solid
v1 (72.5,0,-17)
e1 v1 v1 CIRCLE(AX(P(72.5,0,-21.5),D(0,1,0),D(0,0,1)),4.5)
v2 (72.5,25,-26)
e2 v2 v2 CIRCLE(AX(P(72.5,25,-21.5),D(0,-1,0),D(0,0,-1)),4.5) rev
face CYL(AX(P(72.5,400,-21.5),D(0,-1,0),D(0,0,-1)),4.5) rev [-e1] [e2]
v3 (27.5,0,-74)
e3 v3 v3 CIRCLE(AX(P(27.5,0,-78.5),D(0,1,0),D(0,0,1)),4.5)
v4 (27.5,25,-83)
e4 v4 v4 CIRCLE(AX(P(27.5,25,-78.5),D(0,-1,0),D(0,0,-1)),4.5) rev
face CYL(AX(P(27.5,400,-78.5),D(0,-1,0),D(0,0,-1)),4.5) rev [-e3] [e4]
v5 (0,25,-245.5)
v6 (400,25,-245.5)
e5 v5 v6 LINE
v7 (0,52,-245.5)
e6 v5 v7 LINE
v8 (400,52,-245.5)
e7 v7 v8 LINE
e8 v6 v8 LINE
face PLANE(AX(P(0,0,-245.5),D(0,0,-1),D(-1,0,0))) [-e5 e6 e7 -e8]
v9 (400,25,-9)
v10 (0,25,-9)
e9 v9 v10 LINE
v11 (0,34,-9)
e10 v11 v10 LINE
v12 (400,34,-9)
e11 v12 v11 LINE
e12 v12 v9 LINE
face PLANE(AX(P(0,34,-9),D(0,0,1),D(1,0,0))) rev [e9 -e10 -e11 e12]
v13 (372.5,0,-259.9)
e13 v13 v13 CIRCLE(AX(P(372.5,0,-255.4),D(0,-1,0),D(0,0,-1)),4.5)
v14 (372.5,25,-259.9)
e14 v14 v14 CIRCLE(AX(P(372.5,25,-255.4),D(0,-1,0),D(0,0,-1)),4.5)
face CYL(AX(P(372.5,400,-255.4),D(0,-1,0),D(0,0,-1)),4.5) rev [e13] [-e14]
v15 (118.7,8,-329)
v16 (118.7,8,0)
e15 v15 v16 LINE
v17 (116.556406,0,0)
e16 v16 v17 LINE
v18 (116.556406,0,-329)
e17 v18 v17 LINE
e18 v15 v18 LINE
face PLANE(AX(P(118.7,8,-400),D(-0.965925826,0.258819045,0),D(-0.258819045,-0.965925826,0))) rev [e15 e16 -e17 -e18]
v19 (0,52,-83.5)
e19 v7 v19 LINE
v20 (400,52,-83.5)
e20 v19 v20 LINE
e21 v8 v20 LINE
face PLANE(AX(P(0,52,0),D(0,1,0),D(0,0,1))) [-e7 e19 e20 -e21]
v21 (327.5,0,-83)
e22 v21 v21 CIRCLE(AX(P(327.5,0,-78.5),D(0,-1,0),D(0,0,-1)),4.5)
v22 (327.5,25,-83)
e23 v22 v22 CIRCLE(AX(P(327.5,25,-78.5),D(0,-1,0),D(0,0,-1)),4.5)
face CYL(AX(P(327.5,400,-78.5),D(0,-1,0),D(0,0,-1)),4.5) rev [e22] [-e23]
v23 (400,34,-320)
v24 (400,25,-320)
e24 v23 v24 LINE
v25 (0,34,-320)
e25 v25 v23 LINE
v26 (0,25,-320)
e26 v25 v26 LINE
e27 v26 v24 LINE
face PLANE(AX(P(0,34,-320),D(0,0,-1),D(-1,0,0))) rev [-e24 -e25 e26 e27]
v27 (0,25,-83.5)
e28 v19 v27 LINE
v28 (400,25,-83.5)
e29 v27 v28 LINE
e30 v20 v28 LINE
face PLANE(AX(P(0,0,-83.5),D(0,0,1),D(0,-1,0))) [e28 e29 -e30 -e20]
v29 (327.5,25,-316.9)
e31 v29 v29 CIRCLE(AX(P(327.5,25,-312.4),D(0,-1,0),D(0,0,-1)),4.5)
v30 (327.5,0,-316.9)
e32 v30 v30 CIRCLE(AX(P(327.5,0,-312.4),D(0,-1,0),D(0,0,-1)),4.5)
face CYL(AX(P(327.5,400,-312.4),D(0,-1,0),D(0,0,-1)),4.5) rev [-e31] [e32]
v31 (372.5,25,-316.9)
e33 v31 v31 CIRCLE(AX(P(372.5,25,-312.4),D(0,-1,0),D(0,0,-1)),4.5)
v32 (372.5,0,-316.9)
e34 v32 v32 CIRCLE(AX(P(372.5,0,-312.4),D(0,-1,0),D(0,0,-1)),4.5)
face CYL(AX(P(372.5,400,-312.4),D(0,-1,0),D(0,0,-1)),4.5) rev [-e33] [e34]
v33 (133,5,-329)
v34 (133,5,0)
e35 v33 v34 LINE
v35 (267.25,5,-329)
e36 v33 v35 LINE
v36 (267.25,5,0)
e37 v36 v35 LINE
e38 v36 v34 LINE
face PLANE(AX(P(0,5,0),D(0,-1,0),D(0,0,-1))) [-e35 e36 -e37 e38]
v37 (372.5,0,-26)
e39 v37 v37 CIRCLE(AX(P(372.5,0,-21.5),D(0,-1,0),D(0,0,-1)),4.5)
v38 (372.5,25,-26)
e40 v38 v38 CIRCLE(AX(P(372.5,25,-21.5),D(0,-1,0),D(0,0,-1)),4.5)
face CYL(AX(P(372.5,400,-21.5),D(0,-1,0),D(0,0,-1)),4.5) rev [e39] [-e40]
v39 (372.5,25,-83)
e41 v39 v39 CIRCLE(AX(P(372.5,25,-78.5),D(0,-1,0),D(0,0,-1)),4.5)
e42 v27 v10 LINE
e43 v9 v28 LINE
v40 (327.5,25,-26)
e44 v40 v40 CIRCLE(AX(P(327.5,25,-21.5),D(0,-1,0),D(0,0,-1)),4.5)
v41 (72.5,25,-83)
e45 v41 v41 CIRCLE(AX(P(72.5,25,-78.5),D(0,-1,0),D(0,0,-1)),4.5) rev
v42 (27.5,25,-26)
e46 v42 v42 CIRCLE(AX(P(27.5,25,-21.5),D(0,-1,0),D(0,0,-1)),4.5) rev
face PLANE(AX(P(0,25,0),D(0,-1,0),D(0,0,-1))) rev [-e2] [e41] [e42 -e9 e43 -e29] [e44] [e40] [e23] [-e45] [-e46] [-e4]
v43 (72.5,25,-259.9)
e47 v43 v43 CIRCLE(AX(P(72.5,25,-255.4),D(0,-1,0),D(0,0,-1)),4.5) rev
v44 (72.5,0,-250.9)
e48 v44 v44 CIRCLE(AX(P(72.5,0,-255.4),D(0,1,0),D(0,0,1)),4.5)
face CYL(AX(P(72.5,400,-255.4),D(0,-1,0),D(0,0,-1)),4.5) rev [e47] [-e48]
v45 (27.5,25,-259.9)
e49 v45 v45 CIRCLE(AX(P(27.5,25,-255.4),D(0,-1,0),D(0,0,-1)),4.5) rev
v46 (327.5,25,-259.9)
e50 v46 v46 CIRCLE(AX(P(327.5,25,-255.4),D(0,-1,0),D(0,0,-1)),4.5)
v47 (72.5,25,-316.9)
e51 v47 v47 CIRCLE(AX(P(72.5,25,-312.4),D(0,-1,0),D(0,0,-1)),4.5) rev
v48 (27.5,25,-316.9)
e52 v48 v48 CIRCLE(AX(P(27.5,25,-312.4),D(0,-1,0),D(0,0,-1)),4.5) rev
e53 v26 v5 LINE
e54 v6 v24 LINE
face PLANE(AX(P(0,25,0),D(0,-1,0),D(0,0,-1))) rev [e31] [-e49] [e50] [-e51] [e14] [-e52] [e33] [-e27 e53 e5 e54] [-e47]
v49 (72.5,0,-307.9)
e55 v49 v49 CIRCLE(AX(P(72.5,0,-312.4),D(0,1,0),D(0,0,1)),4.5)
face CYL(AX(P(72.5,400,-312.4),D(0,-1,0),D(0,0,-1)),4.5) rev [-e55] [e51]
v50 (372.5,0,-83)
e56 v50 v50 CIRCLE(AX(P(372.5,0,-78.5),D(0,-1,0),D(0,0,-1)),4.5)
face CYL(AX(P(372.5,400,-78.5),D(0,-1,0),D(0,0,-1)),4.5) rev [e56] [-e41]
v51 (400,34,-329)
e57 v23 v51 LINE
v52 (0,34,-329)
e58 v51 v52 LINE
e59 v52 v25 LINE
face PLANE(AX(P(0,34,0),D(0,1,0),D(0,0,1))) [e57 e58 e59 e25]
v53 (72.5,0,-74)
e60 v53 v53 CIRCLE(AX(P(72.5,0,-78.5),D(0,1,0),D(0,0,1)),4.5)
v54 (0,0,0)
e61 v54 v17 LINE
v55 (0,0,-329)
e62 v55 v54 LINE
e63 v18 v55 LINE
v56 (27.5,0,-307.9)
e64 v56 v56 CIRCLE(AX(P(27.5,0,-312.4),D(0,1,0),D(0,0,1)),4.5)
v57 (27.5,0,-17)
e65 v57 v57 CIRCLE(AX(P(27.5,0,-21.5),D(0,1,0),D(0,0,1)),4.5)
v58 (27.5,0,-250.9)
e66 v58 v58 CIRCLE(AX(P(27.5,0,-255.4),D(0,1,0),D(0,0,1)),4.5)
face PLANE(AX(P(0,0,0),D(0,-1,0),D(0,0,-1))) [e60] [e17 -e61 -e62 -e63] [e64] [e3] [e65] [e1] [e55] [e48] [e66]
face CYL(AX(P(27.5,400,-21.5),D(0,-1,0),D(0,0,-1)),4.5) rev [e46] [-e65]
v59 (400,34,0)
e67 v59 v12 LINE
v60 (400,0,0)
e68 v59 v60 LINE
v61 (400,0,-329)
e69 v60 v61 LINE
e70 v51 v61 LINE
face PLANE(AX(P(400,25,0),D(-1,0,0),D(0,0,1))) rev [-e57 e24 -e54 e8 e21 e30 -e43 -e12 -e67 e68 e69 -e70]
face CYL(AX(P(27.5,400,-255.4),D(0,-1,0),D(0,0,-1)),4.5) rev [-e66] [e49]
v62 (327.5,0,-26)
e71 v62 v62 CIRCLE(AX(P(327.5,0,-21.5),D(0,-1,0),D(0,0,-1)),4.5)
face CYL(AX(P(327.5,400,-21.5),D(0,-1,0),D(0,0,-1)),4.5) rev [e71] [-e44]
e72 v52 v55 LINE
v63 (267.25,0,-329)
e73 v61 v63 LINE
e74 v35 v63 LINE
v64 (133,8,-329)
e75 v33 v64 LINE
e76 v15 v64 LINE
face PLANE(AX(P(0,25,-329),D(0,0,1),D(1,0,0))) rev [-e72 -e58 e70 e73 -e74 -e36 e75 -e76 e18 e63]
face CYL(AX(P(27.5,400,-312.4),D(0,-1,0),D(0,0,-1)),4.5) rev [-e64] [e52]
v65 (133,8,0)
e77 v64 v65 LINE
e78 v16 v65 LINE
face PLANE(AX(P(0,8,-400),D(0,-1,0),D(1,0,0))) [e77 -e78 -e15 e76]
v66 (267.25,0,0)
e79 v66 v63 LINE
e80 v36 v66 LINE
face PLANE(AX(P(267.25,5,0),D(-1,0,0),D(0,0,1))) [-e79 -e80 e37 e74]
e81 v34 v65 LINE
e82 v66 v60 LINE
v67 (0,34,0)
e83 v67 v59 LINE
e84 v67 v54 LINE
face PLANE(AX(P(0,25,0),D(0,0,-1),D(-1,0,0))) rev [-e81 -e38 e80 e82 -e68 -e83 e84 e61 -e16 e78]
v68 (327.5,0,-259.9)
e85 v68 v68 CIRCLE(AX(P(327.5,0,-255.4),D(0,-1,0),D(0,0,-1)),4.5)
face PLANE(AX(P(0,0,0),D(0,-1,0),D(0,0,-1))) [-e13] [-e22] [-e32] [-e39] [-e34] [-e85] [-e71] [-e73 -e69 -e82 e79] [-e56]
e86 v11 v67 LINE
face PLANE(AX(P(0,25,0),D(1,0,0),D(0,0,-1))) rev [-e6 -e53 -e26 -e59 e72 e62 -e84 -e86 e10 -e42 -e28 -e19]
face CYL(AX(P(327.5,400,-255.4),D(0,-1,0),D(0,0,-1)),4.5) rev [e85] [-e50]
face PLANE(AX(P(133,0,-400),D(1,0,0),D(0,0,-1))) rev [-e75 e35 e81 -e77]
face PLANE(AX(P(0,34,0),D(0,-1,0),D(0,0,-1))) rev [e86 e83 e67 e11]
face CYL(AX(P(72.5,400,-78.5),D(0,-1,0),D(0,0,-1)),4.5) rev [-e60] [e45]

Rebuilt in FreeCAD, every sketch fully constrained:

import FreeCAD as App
import Part
import Sketcher
from FreeCAD import Vector
Q = App.Units.Quantity

doc = App.newDocument("Part")
body = doc.addObject("PartDesign::Body", "Body")

# Sketch on XZ plane
sketch1 = body.newObject("Sketcher::SketchObject", "Sketch")
sketch1.AttachmentSupport = (doc.getObject("XZ_Plane"), [""])
sketch1.MapMode = "FlatFace"
sketch1.addGeometry([
    Part.LineSegment(Vector(0, -329, 0), Vector(0, 0, 0)),
    Part.LineSegment(Vector(0, 0, 0), Vector(400, 0, 0)),
    Part.LineSegment(Vector(400, 0, 0), Vector(400, -329, 0)),
    Part.LineSegment(Vector(400, -329, 0), Vector(0, -329, 0)),
], False)
sketch1.addConstraint([
    Sketcher.Constraint("Coincident", 0, 2, 1, 1),
    Sketcher.Constraint("Coincident", 1, 2, 2, 1),
    Sketcher.Constraint("Coincident", 2, 2, 3, 1),
    Sketcher.Constraint("Coincident", 3, 2, 0, 1),
    Sketcher.Constraint("Vertical", 0),
    Sketcher.Constraint("Horizontal", 1),
    Sketcher.Constraint("Vertical", 2),
    Sketcher.Constraint("Horizontal", 3),
    Sketcher.Constraint("Coincident", 0, 2, -1, 1),
    Sketcher.Constraint("DistanceX", 1, 1, 1, 2, 400.0),
    Sketcher.Constraint("DistanceY", 0, 1, 0, 2, 329.0),
])
pad1 = body.newObject("PartDesign::Pad", "Pad")
pad1.Profile = sketch1
pad1.Length = 25
pad1.Reversed = True

# Sketch on XZ plane
sketch2 = body.newObject("Sketcher::SketchObject", "Sketch001")
sketch2.AttachmentSupport = (doc.getObject("XZ_Plane"), [""])
sketch2.MapMode = "FlatFace"
sketch2.AttachmentOffset = App.Placement(Vector(0, 0, -25), App.Rotation())
sketch2.addGeometry([
    Part.LineSegment(Vector(0, -329, 0), Vector(0, -320, 0)),  # 0
    Part.LineSegment(Vector(0, -320, 0), Vector(400, -320, 0)),  # 1
    Part.LineSegment(Vector(400, -320, 0), Vector(400, -329, 0)),  # 2
    Part.LineSegment(Vector(400, -329, 0), Vector(0, -329, 0)),  # 3
    Part.LineSegment(Vector(0, -9, 0), Vector(0, 0, 0)),  # 4
    Part.LineSegment(Vector(0, 0, 0), Vector(400, 0, 0)),  # 5
    Part.LineSegment(Vector(400, 0, 0), Vector(400, -9, 0)),  # 6
    Part.LineSegment(Vector(400, -9, 0), Vector(0, -9, 0)),  # 7
], False)
sketch2.addConstraint([
    Sketcher.Constraint("Coincident", 0, 2, 1, 1),
    Sketcher.Constraint("Coincident", 1, 2, 2, 1),
    Sketcher.Constraint("Coincident", 2, 2, 3, 1),
    Sketcher.Constraint("Coincident", 3, 2, 0, 1),
    Sketcher.Constraint("Coincident", 4, 2, 5, 1),
    Sketcher.Constraint("Coincident", 5, 2, 6, 1),
    Sketcher.Constraint("Coincident", 6, 2, 7, 1),
    Sketcher.Constraint("Coincident", 7, 2, 4, 1),
    Sketcher.Constraint("Vertical", 0),
    Sketcher.Constraint("Horizontal", 1),
    Sketcher.Constraint("Vertical", 2),
    Sketcher.Constraint("Horizontal", 3),
    Sketcher.Constraint("Vertical", 4),
    Sketcher.Constraint("Horizontal", 5),
    Sketcher.Constraint("Vertical", 6),
    Sketcher.Constraint("Horizontal", 7),
    Sketcher.Constraint("Coincident", 4, 2, -1, 1),
    Sketcher.Constraint("PointOnObject", 0, 2, -2),
    Sketcher.Constraint("Vertical", 2, 2, 5, 2),
    Sketcher.Constraint("Equal", 2, 4),
    Sketcher.Constraint("DistanceX", 1, 1, 1, 2, 400.0),
    Sketcher.Constraint("DistanceY", 0, 1, 0, 2, 9.0),
    Sketcher.Constraint("DistanceY", 0, 2, -1, 1, 320.0),
])
pad2 = body.newObject("PartDesign::Pad", "Pad001")
pad2.Profile = sketch2
pad2.Length = 9
pad2.Reversed = True

# Sketch on YZ plane
sketch3 = body.newObject("Sketcher::SketchObject", "Sketch002")
sketch3.AttachmentSupport = (doc.getObject("YZ_Plane"), [""])
sketch3.MapMode = "FlatFace"
sketch3.AttachmentOffset = App.Placement(Vector(0, 0, 400), App.Rotation())
sketch3.addGeometry([
    Part.LineSegment(Vector(25, -245.5, 0), Vector(52, -245.5, 0)),
    Part.LineSegment(Vector(52, -245.5, 0), Vector(52, -83.5, 0)),
    Part.LineSegment(Vector(52, -83.5, 0), Vector(25, -83.5, 0)),
    Part.LineSegment(Vector(25, -83.5, 0), Vector(25, -245.5, 0)),
], False)
sketch3.addConstraint([
    Sketcher.Constraint("Coincident", 0, 2, 1, 1),
    Sketcher.Constraint("Coincident", 1, 2, 2, 1),
    Sketcher.Constraint("Coincident", 2, 2, 3, 1),
    Sketcher.Constraint("Coincident", 3, 2, 0, 1),
    Sketcher.Constraint("Horizontal", 0),
    Sketcher.Constraint("Vertical", 1),
    Sketcher.Constraint("Horizontal", 2),
    Sketcher.Constraint("Vertical", 3),
    Sketcher.Constraint("DistanceX", 0, 1, 0, 2, 27.0),
    Sketcher.Constraint("DistanceY", 1, 1, 1, 2, 162.0),
    Sketcher.Constraint("DistanceX", -1, 1, 0, 2, 52.0),
    Sketcher.Constraint("DistanceY", 0, 2, -1, 1, 245.5),
])
pad3 = body.newObject("PartDesign::Pad", "Pad002")
pad3.Profile = sketch3
pad3.Length = 400
pad3.Reversed = True

# Sketch on XZ plane
sketch4 = body.newObject("Sketcher::SketchObject", "Sketch003")
sketch4.AttachmentSupport = (doc.getObject("XZ_Plane"), [""])
sketch4.MapMode = "FlatFace"
sketch4.addGeometry([
    Part.LineSegment(Vector(133, 0, 0), Vector(133, -329, 0)),
    Part.LineSegment(Vector(133, -329, 0), Vector(267.25, -329, 0)),
    Part.LineSegment(Vector(267.25, -329, 0), Vector(267.25, 0, 0)),
    Part.LineSegment(Vector(267.25, 0, 0), Vector(133, 0, 0)),
], False)
sketch4.addConstraint([
    Sketcher.Constraint("Coincident", 0, 2, 1, 1),
    Sketcher.Constraint("Coincident", 1, 2, 2, 1),
    Sketcher.Constraint("Coincident", 2, 2, 3, 1),
    Sketcher.Constraint("Coincident", 3, 2, 0, 1),
    Sketcher.Constraint("Vertical", 0),
    Sketcher.Constraint("Horizontal", 1),
    Sketcher.Constraint("Vertical", 2),
    Sketcher.Constraint("Horizontal", 3),
    Sketcher.Constraint("PointOnObject", 2, 2, -1),
    Sketcher.Constraint("DistanceY", 0, 2, 0, 1, 329.0),
    Sketcher.Constraint("DistanceX", -1, 1, 0, 2, 133.0),
    Sketcher.Constraint("DistanceX", 1, 1, 1, 2, 134.25),
])
pocket1 = body.newObject("PartDesign::Pocket", "Pocket")
pocket1.Profile = sketch4
pocket1.Length = 5

# Sketch on XY plane
sketch5 = body.newObject("Sketcher::SketchObject", "Sketch004")
sketch5.AttachmentSupport = (doc.getObject("XY_Plane"), [""])
sketch5.MapMode = "FlatFace"
sketch5.addGeometry([
    Part.LineSegment(Vector(133, 8, 0), Vector(118.7, 8, 0)),
    Part.LineSegment(Vector(118.7, 8, 0), Vector(118.7, 0, 0)),
    Part.LineSegment(Vector(118.7, 0, 0), Vector(133, 0, 0)),
    Part.LineSegment(Vector(133, 0, 0), Vector(133, 8, 0)),
], False)
sketch5.addConstraint([
    Sketcher.Constraint("Coincident", 0, 2, 1, 1),
    Sketcher.Constraint("Coincident", 1, 2, 2, 1),
    Sketcher.Constraint("Coincident", 2, 2, 3, 1),
    Sketcher.Constraint("Coincident", 3, 2, 0, 1),
    Sketcher.Constraint("Horizontal", 0),
    Sketcher.Constraint("Vertical", 1),
    Sketcher.Constraint("Horizontal", 2),
    Sketcher.Constraint("Vertical", 3),
    Sketcher.Constraint("PointOnObject", 1, 2, -1),
    Sketcher.Constraint("DistanceY", 1, 2, 1, 1, 8.0),
    Sketcher.Constraint("DistanceX", 0, 2, 0, 1, 14.3),
    Sketcher.Constraint("DistanceX", -1, 1, 2, 2, 133.0),
])
pocket2 = body.newObject("PartDesign::Pocket", "Pocket001")
pocket2.Profile = sketch5
pocket2.Length = 400

# Sketch on XY plane
sketch6 = body.newObject("Sketcher::SketchObject", "Sketch005")
sketch6.AttachmentSupport = (doc.getObject("XY_Plane"), [""])
sketch6.MapMode = "FlatFace"
sketch6.addGeometry([
    Part.LineSegment(Vector(118.7, 8, 0), Vector(116.556406, 0, 0)),
    Part.LineSegment(Vector(116.556406, 0, 0), Vector(118.7, 0, 0)),
    Part.LineSegment(Vector(118.7, 0, 0), Vector(118.7, 8, 0)),
], False)
sketch6.addConstraint([
    Sketcher.Constraint("Coincident", 0, 2, 1, 1),
    Sketcher.Constraint("Coincident", 1, 2, 2, 1),
    Sketcher.Constraint("Coincident", 2, 2, 0, 1),
    Sketcher.Constraint("Horizontal", 1),
    Sketcher.Constraint("Vertical", 2),
    Sketcher.Constraint("PointOnObject", 0, 2, -1),
    Sketcher.Constraint("DistanceY", 2, 1, 2, 2, 8.0),
    Sketcher.Constraint("Angle", 0, Q("-105 deg")),
    Sketcher.Constraint("DistanceX", -1, 1, 1, 2, 118.7),
])
pocket3 = body.newObject("PartDesign::Pocket", "Pocket002")
pocket3.Profile = sketch6
pocket3.Length = 400

# Sketch on XZ plane
sketch7 = body.newObject("Sketcher::SketchObject", "Sketch006")
sketch7.AttachmentSupport = (doc.getObject("XZ_Plane"), [""])
sketch7.MapMode = "FlatFace"
sketch7.addGeometry([
    Part.Circle(Vector(372.5, -312.4, 0), Vector(0, 0, 1), 4.5),  # 0
    Part.Circle(Vector(327.5, -312.4, 0), Vector(0, 0, 1), 4.5),  # 1
    Part.Circle(Vector(372.5, -255.4, 0), Vector(0, 0, 1), 4.5),  # 2
    Part.Circle(Vector(327.5, -255.4, 0), Vector(0, 0, 1), 4.5),  # 3
    Part.Circle(Vector(372.5, -78.5, 0), Vector(0, 0, 1), 4.5),  # 4
    Part.Circle(Vector(327.5, -78.5, 0), Vector(0, 0, 1), 4.5),  # 5
    Part.Circle(Vector(372.5, -21.5, 0), Vector(0, 0, 1), 4.5),  # 6
    Part.Circle(Vector(327.5, -21.5, 0), Vector(0, 0, 1), 4.5),  # 7
    Part.Circle(Vector(27.5, -21.5, 0), Vector(0, 0, 1), 4.5),  # 8
    Part.Circle(Vector(72.5, -21.5, 0), Vector(0, 0, 1), 4.5),  # 9
    Part.Circle(Vector(72.5, -78.5, 0), Vector(0, 0, 1), 4.5),  # 10
    Part.Circle(Vector(27.5, -78.5, 0), Vector(0, 0, 1), 4.5),  # 11
    Part.Circle(Vector(72.5, -312.4, 0), Vector(0, 0, 1), 4.5),  # 12
    Part.Circle(Vector(27.5, -312.4, 0), Vector(0, 0, 1), 4.5),  # 13
    Part.Circle(Vector(27.5, -255.4, 0), Vector(0, 0, 1), 4.5),  # 14
    Part.Circle(Vector(72.5, -255.4, 0), Vector(0, 0, 1), 4.5),  # 15
], False)
sketch7.addConstraint([
    Sketcher.Constraint("Equal", 0, 1),
    Sketcher.Constraint("Equal", 1, 2),
    Sketcher.Constraint("Equal", 2, 3),
    Sketcher.Constraint("Equal", 3, 4),
    Sketcher.Constraint("Equal", 4, 5),
    Sketcher.Constraint("Equal", 5, 6),
    Sketcher.Constraint("Equal", 6, 7),
    Sketcher.Constraint("Equal", 7, 8),
    Sketcher.Constraint("Equal", 8, 9),
    Sketcher.Constraint("Equal", 9, 10),
    Sketcher.Constraint("Equal", 10, 11),
    Sketcher.Constraint("Equal", 11, 12),
    Sketcher.Constraint("Equal", 12, 13),
    Sketcher.Constraint("Equal", 13, 14),
    Sketcher.Constraint("Equal", 14, 15),
    Sketcher.Constraint("Horizontal", 0, 3, 1, 3),
    Sketcher.Constraint("Horizontal", 2, 3, 3, 3),
    Sketcher.Constraint("Horizontal", 4, 3, 5, 3),
    Sketcher.Constraint("Horizontal", 6, 3, 7, 3),
    Sketcher.Constraint("Horizontal", 7, 3, 8, 3),
    Sketcher.Constraint("Horizontal", 8, 3, 9, 3),
    Sketcher.Constraint("Horizontal", 5, 3, 10, 3),
    Sketcher.Constraint("Horizontal", 10, 3, 11, 3),
    Sketcher.Constraint("Horizontal", 1, 3, 12, 3),
    Sketcher.Constraint("Horizontal", 12, 3, 13, 3),
    Sketcher.Constraint("Horizontal", 3, 3, 14, 3),
    Sketcher.Constraint("Horizontal", 14, 3, 15, 3),
    Sketcher.Constraint("Vertical", 0, 3, 2, 3),
    Sketcher.Constraint("Vertical", 1, 3, 3, 3),
    Sketcher.Constraint("Vertical", 2, 3, 4, 3),
    Sketcher.Constraint("Vertical", 3, 3, 5, 3),
    Sketcher.Constraint("Vertical", 4, 3, 6, 3),
    Sketcher.Constraint("Vertical", 5, 3, 7, 3),
    Sketcher.Constraint("Vertical", 9, 3, 10, 3),
    Sketcher.Constraint("Vertical", 8, 3, 11, 3),
    Sketcher.Constraint("Vertical", 10, 3, 12, 3),
    Sketcher.Constraint("Vertical", 11, 3, 13, 3),
    Sketcher.Constraint("Vertical", 13, 3, 14, 3),
    Sketcher.Constraint("Vertical", 12, 3, 15, 3),
    Sketcher.Constraint("Diameter", 0, 9.0),
    Sketcher.Constraint("DistanceX", 1, 3, 0, 3, 45.0),
    Sketcher.Constraint("DistanceY", 0, 3, 2, 3, 57.0),
    Sketcher.Constraint("DistanceY", 4, 3, 6, 3, 57.0),
    Sketcher.Constraint("DistanceX", 8, 3, 7, 3, 300.0),
    Sketcher.Constraint("DistanceX", 8, 3, 9, 3, 45.0),
    Sketcher.Constraint("DistanceX", -1, 1, 0, 3, 372.5),
    Sketcher.Constraint("DistanceY", 0, 3, -1, 1, 312.4),
    Sketcher.Constraint("DistanceY", 4, 3, -1, 1, 78.5),
])
pocket4 = body.newObject("PartDesign::Pocket", "Pocket003")
pocket4.Profile = sketch7
pocket4.Length = 400

doc.recompute()
